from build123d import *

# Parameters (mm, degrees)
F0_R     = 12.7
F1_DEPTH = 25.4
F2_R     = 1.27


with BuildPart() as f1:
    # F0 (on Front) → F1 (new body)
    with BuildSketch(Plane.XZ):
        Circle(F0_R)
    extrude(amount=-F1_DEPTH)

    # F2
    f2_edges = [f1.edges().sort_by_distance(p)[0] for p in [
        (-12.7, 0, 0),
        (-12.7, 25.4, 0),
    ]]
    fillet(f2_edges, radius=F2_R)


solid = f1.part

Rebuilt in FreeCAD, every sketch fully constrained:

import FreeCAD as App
import Part
import Sketcher
Q = App.Units.Quantity


def edges_at(feature, points):
    """Names of the edges that pass closest to the given points."""
    edges = feature.Shape.Edges
    near = lambda p: min(range(len(edges)), key=lambda i: edges[i].distToShape(Part.Vertex(*p))[0])
    return sorted({f"Edge{near(p) + 1}" for p in points})

doc = App.newDocument("Part")
body = doc.addObject("PartDesign::Body", "Body")

sketch1 = body.newObject("Sketcher::SketchObject", "Sketch")
sketch1.AttachmentSupport = (doc.getObject("XZ_Plane"), [""])
sketch1.MapMode = "FlatFace"
sketch1.addGeometry(Part.Circle(App.Vector(0, 0, 0), App.Vector(0, 0, 1), 13), False)
sketch1.addConstraint([
    Sketcher.Constraint("Coincident", 0, 3, -1, 1),
    Sketcher.Constraint("Diameter", 0, Q("1 in")),
])
pad1 = body.newObject("PartDesign::Pad", "Pad")
pad1.Profile = sketch1
pad1.Length = Q("1 in")
pad1.Reversed = True
doc.recompute()

fillet = body.newObject("PartDesign::Fillet", "Fillet")
fillet.Base = (pad1, edges_at(pad1, [(-12.7, 0, 0), (-12.7, 25.4, 0)]))
fillet.Radius = Q("0.05 in")

doc.recompute()
